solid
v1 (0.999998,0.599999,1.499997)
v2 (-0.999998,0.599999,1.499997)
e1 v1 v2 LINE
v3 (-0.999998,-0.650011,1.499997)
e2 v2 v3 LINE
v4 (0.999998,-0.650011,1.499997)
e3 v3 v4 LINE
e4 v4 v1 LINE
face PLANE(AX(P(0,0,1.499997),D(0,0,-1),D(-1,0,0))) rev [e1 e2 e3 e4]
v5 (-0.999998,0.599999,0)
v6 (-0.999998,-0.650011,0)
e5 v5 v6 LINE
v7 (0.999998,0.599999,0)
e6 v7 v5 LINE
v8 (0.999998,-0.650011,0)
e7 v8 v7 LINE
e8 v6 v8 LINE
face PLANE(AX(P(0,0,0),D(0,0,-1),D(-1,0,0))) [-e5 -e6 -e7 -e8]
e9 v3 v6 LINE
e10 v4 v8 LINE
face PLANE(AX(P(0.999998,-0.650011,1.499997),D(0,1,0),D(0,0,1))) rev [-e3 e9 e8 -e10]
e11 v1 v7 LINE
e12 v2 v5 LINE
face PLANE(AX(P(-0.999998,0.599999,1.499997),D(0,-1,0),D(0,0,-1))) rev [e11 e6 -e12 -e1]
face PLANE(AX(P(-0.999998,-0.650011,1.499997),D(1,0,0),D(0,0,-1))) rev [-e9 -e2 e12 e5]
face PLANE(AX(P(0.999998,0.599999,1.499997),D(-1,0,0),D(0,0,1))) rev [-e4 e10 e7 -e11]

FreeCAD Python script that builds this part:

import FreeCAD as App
import Part
import Sketcher

V = App.Vector
Q = App.Units.Quantity


def add_polygon(sketch, points):
    """Adds a closed chain of lines whose ends are joined by coincident constraints."""
    first, n = sketch.GeometryCount, len(points)
    for a, b in zip(points, points[1:] + points[:1]):
        sketch.addGeometry(Part.LineSegment(App.Vector(*a, 0), App.Vector(*b, 0)), False)
    for i in range(n):
        sketch.addConstraint(Sketcher.Constraint("Coincident", first + i, 2, first + (i + 1) % n, 1))

doc = App.newDocument("Part")
body = doc.addObject("PartDesign::Body", "Body")

sketch1 = body.newObject("Sketcher::SketchObject", "Sketch")
sketch1.AttachmentSupport = (doc.getObject("XY_Plane"), [""])
sketch1.MapMode = "FlatFace"
add_polygon(sketch1, [(-0.999998, 0.599999), (-0.999998, -0.650011), (0.999998, -0.650011), (0.999998, 0.599999)])
sketch1.addConstraint([
    Sketcher.Constraint("Vertical", 0),
    Sketcher.Constraint("Horizontal", 1),
    Sketcher.Constraint("Vertical", 2),
    Sketcher.Constraint("Horizontal", 3),
    Sketcher.Constraint("DistanceX", 0, 2, -1, 1, Q("0.999998 mm")),
    Sketcher.Constraint("DistanceX", -1, 1, 1, 2, Q("0.999998 mm")),
    Sketcher.Constraint("DistanceY", -1, 1, 2, 2, Q("0.599999 mm")),
    Sketcher.Constraint("DistanceY", 0, 2, 0, 1, Q("1.25001 mm")),
])
pad1 = body.newObject("PartDesign::Pad", "Pad")
pad1.Profile = sketch1
pad1.Length = 1.499997

doc.recompute()
